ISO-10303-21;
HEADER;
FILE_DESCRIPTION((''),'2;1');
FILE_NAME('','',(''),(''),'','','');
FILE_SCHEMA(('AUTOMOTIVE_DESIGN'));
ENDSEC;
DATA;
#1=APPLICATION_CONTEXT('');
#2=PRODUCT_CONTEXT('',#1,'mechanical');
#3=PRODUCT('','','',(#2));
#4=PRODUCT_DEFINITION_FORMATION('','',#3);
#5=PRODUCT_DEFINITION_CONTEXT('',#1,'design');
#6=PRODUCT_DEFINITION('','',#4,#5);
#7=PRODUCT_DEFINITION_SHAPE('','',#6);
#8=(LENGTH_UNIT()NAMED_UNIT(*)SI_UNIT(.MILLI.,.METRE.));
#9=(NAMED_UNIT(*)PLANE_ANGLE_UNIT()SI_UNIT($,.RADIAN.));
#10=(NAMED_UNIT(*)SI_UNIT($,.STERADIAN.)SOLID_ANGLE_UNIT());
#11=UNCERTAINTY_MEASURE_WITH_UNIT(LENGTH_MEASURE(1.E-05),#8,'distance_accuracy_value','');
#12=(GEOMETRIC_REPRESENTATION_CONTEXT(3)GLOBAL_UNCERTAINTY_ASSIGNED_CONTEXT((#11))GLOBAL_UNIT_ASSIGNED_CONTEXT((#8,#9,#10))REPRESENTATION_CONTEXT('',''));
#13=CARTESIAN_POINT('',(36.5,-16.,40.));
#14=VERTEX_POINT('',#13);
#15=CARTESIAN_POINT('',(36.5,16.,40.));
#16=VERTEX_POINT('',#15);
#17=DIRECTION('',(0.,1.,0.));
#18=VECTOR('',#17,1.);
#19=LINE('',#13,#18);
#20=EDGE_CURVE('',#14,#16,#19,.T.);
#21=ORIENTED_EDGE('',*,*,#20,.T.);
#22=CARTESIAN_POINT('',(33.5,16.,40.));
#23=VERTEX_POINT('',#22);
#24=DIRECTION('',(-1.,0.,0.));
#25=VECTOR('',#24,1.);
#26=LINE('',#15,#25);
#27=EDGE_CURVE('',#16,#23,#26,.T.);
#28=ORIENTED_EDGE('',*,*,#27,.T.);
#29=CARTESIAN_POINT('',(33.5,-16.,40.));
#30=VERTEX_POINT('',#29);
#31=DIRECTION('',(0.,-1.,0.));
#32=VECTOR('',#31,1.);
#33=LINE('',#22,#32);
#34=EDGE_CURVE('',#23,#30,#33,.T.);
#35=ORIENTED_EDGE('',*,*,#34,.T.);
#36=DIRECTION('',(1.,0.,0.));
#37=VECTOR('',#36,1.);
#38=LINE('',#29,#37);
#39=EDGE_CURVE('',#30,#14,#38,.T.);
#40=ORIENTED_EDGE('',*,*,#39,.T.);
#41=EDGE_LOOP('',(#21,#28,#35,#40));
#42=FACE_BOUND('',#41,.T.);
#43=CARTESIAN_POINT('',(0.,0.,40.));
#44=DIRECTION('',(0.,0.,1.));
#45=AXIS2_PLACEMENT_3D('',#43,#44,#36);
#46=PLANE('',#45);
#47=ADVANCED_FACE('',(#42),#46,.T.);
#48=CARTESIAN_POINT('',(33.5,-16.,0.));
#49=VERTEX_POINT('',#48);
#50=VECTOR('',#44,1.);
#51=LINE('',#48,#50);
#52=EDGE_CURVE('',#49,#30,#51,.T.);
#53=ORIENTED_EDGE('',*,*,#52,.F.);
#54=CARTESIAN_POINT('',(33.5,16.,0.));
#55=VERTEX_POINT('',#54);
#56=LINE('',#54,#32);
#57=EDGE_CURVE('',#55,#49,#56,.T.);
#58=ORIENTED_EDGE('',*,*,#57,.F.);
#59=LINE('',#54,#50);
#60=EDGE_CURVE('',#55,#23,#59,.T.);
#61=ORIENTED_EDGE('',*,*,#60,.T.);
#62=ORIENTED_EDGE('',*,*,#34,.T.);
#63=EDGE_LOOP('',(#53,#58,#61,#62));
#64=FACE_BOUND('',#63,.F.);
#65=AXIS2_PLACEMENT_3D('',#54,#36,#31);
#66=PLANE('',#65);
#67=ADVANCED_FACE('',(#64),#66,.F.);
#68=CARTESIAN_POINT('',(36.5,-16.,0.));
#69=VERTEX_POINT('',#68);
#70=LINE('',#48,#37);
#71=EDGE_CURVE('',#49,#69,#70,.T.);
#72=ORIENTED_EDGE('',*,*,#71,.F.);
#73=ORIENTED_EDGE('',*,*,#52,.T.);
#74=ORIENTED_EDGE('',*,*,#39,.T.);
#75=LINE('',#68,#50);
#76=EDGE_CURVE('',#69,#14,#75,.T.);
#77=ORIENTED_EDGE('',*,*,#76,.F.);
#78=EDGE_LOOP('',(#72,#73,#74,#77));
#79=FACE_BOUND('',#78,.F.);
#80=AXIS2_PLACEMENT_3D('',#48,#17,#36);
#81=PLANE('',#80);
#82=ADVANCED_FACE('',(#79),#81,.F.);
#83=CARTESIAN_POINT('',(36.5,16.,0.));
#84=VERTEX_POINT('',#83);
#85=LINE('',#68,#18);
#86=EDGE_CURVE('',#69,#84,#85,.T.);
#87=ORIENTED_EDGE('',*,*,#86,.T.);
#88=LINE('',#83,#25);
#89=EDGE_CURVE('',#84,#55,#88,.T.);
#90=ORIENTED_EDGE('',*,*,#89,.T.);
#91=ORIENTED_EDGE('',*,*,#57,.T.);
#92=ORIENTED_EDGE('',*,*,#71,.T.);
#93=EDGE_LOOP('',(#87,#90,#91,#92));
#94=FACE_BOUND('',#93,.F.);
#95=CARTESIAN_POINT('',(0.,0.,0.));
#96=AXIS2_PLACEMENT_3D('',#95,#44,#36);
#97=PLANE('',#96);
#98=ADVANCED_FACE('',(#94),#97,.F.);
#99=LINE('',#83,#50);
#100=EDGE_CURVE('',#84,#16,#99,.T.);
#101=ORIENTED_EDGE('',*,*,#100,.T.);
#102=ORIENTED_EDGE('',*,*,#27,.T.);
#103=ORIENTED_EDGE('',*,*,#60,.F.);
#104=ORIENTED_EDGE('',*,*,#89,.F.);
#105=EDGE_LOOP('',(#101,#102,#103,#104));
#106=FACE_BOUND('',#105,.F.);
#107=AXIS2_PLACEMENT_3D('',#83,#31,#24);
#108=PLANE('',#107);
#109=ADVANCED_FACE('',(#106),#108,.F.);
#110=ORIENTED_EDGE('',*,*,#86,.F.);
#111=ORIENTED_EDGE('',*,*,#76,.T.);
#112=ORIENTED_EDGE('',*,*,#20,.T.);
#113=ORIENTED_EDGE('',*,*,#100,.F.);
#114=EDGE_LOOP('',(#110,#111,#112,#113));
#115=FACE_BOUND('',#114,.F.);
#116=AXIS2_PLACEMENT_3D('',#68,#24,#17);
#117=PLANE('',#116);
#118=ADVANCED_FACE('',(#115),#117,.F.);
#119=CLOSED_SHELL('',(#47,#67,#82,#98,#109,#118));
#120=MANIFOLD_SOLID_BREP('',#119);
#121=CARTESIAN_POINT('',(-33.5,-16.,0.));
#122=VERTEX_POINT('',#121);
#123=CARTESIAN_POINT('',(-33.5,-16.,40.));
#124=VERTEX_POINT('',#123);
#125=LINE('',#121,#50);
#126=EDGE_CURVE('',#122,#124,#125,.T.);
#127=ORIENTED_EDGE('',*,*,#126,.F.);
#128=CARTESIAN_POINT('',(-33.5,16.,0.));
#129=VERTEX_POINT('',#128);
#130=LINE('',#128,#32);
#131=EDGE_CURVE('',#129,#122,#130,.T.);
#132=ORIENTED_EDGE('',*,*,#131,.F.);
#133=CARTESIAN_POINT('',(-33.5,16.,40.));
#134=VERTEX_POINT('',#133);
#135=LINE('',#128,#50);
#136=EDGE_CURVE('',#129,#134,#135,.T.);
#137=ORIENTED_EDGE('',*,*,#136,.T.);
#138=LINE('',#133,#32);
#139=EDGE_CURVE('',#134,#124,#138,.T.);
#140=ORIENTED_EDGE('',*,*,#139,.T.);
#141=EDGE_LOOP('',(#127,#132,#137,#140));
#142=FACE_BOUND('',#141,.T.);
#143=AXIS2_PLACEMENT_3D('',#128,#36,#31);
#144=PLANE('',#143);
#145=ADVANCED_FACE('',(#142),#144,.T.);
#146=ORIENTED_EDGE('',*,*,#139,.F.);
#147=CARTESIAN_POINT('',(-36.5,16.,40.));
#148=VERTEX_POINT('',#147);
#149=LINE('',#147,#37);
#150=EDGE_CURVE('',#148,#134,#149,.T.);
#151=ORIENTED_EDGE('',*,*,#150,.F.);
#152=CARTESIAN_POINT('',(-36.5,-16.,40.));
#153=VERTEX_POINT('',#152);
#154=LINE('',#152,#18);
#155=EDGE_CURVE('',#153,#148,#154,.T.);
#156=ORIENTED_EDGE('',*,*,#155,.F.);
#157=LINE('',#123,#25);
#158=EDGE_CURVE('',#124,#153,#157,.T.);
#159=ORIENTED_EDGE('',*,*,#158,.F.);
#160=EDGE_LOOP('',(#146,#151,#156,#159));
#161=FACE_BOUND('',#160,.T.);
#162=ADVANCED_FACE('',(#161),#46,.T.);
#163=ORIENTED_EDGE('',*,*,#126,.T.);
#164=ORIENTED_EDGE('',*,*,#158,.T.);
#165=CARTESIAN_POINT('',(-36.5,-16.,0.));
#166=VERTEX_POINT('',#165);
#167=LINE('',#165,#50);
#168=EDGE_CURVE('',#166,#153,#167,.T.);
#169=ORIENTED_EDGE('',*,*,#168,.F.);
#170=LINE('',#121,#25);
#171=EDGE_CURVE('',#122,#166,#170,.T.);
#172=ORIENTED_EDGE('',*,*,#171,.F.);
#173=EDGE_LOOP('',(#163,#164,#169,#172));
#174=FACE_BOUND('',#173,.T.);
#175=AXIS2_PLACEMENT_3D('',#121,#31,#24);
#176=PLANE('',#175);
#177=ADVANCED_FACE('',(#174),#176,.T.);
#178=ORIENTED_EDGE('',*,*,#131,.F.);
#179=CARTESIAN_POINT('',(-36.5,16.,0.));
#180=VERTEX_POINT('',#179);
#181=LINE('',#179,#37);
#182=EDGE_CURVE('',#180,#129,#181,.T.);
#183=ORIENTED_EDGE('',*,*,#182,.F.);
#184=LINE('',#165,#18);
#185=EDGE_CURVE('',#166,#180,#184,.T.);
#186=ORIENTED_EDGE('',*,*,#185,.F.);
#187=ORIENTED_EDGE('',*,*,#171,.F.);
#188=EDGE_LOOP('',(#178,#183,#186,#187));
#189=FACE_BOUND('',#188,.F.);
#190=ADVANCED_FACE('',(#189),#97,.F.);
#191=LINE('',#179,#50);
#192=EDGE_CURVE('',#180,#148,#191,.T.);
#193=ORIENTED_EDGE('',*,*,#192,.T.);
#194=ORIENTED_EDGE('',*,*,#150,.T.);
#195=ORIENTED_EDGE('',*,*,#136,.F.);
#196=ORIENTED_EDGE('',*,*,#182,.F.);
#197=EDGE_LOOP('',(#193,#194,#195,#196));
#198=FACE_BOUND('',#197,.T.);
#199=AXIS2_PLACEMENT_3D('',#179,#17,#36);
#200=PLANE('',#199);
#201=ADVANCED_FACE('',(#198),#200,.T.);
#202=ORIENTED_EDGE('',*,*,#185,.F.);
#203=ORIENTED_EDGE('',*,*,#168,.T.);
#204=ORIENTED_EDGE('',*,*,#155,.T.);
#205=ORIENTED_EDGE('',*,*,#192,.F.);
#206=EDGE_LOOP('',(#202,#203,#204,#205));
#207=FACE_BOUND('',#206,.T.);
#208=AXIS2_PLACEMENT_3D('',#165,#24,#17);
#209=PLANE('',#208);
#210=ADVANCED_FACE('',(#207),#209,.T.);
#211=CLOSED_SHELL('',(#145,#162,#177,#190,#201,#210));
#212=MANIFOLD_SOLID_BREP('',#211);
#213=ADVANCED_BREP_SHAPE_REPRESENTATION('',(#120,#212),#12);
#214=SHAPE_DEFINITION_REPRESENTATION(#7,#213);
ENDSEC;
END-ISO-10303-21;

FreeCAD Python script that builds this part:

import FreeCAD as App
import Part
import Sketcher
Q = App.Units.Quantity

doc = App.newDocument("Part")
body = doc.addObject("PartDesign::Body", "Body")
body.AllowCompound = True

# Sketch on XY plane
sketch1 = doc.addObject("Sketcher::SketchObject", "Sketch")
body.addObject(sketch1)
sketch1.AttachmentSupport = (doc.XY_Plane, [""])
sketch1.MapMode = "FlatFace"
sketch1.addGeometry([
    Part.LineSegment(App.Vector(-33.5, 16, 0), App.Vector(-36.5, 16, 0)),  # 0
    Part.LineSegment(App.Vector(-36.5, 16, 0), App.Vector(-36.5, -16, 0)),  # 1
    Part.LineSegment(App.Vector(-36.5, -16, 0), App.Vector(-33.5, -16, 0)),  # 2
    Part.LineSegment(App.Vector(-33.5, -16, 0), App.Vector(-33.5, 16, 0)),  # 3
    Part.LineSegment(App.Vector(36.5, -16, 0), App.Vector(36.5, 16, 0)),  # 4
    Part.LineSegment(App.Vector(36.5, 16, 0), App.Vector(33.5, 16, 0)),  # 5
    Part.LineSegment(App.Vector(33.5, 16, 0), App.Vector(33.5, -16, 0)),  # 6
    Part.LineSegment(App.Vector(33.5, -16, 0), App.Vector(36.5, -16, 0)),  # 7
], False)
sketch1.addConstraint([
    Sketcher.Constraint("Coincident", 0, 2, 1, 1),
    Sketcher.Constraint("Coincident", 1, 2, 2, 1),
    Sketcher.Constraint("Coincident", 2, 2, 3, 1),
    Sketcher.Constraint("Coincident", 3, 2, 0, 1),
    Sketcher.Constraint("Coincident", 4, 2, 5, 1),
    Sketcher.Constraint("Coincident", 5, 2, 6, 1),
    Sketcher.Constraint("Coincident", 6, 2, 7, 1),
    Sketcher.Constraint("Coincident", 7, 2, 4, 1),
    Sketcher.Constraint("Horizontal", 0),
    Sketcher.Constraint("Vertical", 1),
    Sketcher.Constraint("Horizontal", 2),
    Sketcher.Constraint("Vertical", 3),
    Sketcher.Constraint("Vertical", 4),
    Sketcher.Constraint("Horizontal", 5),
    Sketcher.Constraint("Vertical", 6),
    Sketcher.Constraint("Horizontal", 7),
    Sketcher.Constraint("Symmetric", 1, 2, 4, 2, -1, 1),
    Sketcher.Constraint("Symmetric", 3, 2, 6, 2, -1, 1),
    Sketcher.Constraint("Horizontal", 3, 2, 4, 2),
    Sketcher.Constraint("DistanceX", 0, 2, 0, 1, Q("3 mm")),
    Sketcher.Constraint("DistanceY", 1, 2, 1, 1, Q("32 mm")),
    Sketcher.Constraint("DistanceX", 0, 2, 4, 2, Q("73 mm")),
])
pad1 = doc.addObject("PartDesign::Pad", "Pad")
body.addObject(pad1)
pad1.Profile = sketch1
pad1.Length = 40

doc.recompute()
